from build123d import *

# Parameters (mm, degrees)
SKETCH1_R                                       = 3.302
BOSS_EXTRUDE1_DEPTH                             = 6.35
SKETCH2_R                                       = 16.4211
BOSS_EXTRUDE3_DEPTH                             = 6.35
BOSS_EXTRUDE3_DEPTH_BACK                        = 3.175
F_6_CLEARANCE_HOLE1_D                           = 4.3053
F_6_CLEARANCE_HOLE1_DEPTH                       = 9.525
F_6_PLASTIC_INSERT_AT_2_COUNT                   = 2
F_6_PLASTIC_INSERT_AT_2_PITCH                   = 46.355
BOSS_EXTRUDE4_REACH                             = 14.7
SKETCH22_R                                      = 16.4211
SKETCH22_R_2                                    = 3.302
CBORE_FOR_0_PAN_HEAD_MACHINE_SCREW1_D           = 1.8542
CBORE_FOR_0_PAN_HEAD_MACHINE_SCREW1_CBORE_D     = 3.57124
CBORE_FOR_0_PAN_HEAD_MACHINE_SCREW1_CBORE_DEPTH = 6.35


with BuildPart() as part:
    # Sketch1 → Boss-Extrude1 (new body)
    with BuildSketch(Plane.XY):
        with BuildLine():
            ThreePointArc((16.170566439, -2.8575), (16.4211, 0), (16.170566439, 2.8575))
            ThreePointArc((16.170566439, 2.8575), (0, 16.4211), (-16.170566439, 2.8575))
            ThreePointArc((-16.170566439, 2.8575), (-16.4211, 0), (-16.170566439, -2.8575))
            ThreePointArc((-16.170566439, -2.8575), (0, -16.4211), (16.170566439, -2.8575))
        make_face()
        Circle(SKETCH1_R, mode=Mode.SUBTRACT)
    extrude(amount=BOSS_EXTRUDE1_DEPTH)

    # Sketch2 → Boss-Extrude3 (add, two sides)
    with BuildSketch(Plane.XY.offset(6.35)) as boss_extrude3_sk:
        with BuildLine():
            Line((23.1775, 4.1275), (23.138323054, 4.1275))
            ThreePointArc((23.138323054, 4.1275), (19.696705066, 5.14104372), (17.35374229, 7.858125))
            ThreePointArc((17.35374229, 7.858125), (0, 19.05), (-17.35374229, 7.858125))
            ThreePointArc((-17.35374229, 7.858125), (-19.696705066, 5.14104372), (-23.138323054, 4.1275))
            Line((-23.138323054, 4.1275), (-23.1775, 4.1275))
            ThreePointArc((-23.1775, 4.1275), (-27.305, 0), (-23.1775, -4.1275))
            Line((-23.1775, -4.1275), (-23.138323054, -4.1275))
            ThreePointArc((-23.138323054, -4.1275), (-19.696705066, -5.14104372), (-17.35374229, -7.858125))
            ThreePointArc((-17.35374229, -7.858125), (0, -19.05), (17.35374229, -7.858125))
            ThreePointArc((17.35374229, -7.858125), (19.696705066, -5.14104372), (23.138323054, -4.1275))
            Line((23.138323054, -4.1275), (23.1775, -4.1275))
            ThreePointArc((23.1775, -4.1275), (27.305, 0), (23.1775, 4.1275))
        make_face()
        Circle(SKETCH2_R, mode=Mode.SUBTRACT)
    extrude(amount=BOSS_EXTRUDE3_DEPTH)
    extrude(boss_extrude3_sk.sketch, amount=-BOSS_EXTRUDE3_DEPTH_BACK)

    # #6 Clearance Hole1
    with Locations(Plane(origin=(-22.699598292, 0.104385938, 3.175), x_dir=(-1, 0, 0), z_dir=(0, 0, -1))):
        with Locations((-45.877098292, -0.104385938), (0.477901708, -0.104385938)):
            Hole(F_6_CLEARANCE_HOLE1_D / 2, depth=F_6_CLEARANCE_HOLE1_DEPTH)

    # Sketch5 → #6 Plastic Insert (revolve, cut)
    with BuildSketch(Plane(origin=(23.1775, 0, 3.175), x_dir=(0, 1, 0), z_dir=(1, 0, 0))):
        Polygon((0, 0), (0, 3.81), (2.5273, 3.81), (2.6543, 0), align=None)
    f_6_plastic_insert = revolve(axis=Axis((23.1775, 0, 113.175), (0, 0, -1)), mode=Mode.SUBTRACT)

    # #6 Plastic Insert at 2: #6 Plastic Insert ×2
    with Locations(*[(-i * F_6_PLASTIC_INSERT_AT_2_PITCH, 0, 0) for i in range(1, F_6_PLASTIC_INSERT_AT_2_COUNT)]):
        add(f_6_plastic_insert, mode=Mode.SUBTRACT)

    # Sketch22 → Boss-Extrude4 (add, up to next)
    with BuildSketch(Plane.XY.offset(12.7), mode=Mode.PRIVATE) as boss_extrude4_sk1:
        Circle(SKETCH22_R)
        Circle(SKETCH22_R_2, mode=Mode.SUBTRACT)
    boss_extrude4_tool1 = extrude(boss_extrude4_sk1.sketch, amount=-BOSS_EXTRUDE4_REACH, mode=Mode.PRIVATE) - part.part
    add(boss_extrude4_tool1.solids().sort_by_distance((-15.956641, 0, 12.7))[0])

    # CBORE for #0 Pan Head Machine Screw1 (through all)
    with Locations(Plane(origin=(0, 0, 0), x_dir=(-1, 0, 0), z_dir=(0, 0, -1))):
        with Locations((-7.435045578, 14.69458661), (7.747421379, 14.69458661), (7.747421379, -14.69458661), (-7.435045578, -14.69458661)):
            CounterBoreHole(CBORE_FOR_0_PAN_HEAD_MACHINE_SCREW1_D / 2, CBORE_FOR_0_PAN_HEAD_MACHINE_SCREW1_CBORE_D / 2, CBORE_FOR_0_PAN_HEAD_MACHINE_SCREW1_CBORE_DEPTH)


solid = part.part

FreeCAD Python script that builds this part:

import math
import FreeCAD as App
import Part
import Sketcher

V = App.Vector
Q = App.Units.Quantity

doc = App.newDocument("Part")
body = doc.addObject("PartDesign::Body", "Body")

# Sketch on XY plane
sketch1 = body.newObject("Sketcher::SketchObject", "Sketch")
sketch1.AttachmentSupport = (doc.getObject("XY_Plane"), [""])
sketch1.MapMode = "FlatFace"
sketch1.addGeometry([
    Part.ArcOfCircle(Part.Circle(V(0, 0, 0), V(0, 0, 1), 16.4), math.radians(-10), math.radians(10)),  # 0
    Part.ArcOfCircle(Part.Circle(V(0, 0, 0), V(0, 0, 1), 16.4), math.radians(10), math.radians(170)),  # 1
    Part.ArcOfCircle(Part.Circle(V(0, 0, 0), V(0, 0, 1), 16.4), math.radians(170), math.radians(190)),  # 2
    Part.ArcOfCircle(Part.Circle(V(0, 0, 0), V(0, 0, 1), 16.4), math.radians(-170), math.radians(-10)),  # 3
    Part.Circle(V(0, 0, 0), V(0, 0, 1), 3.3),  # 4
], False)
sketch1.addConstraint([
    Sketcher.Constraint("Tangent", 0, 2, 1, 1),
    Sketcher.Constraint("Tangent", 1, 2, 2, 1),
    Sketcher.Constraint("Tangent", 2, 2, 3, 1),
    Sketcher.Constraint("Tangent", 3, 2, 0, 1),
    Sketcher.Constraint("Coincident", 0, 3, -1, 1),
    Sketcher.Constraint("Coincident", 4, 3, -1, 1),
    Sketcher.Constraint("Equal", 0, 1),
    Sketcher.Constraint("Horizontal", 0, 2, 1, 2),
    Sketcher.Constraint("Horizontal", 2, 2, 3, 2),
    Sketcher.Constraint("Vertical", 1, 2, 2, 2),
    Sketcher.Constraint("Diameter", 4, Q("0.26 in")),
    Sketcher.Constraint("Radius", 0, Q("0.6465 in")),
    Sketcher.Constraint("DistanceY", 2, 2, 1, 2, Q("0.225 in")),
])
pad1 = body.newObject("PartDesign::Pad", "Pad")
pad1.Profile = sketch1
pad1.Length = Q("0.25 in")

# Sketch on XY plane
sketch2 = body.newObject("Sketcher::SketchObject", "Sketch001")
sketch2.AttachmentSupport = (doc.getObject("XY_Plane"), [""])
sketch2.MapMode = "FlatFace"
sketch2.AttachmentOffset = App.Placement(V(0, 0, 0.25 * 25.4), App.Rotation())
sketch2.addGeometry([
    Part.LineSegment(V(23.177, 4.128, 0), V(23.138, 4.128, 0)),  # 0
    Part.ArcOfCircle(Part.Circle(V(23.138, 10.477, 0), V(0, 0, 1), 6.35), math.radians(-156), math.radians(-90)),  # 1
    Part.ArcOfCircle(Part.Circle(V(0, 0, 0), V(0, 0, 1), 19.05), math.radians(24), math.radians(156)),  # 2
    Part.ArcOfCircle(Part.Circle(V(-23.138, 10.477, 0), V(0, 0, 1), 6.35), math.radians(-90), math.radians(-24)),  # 3
    Part.LineSegment(V(-23.138, 4.128, 0), V(-23.177, 4.128, 0)),  # 4
    Part.ArcOfCircle(Part.Circle(V(-23.177, 0, 0), V(0, 0, 1), 4.128), math.radians(90), math.radians(270)),  # 5
    Part.LineSegment(V(-23.177, -4.128, 0), V(-23.138, -4.128, 0)),  # 6
    Part.ArcOfCircle(Part.Circle(V(-23.138, -10.477, 0), V(0, 0, 1), 6.35), math.radians(24), math.radians(90)),  # 7
    Part.ArcOfCircle(Part.Circle(V(0, 0, 0), V(0, 0, 1), 19.05), math.radians(-156), math.radians(-24)),  # 8
    Part.ArcOfCircle(Part.Circle(V(23.138, -10.477, 0), V(0, 0, 1), 6.35), math.radians(90), math.radians(156)),  # 9
    Part.LineSegment(V(23.138, -4.128, 0), V(23.177, -4.128, 0)),  # 10
    Part.ArcOfCircle(Part.Circle(V(23.177, 0, 0), V(0, 0, 1), 4.128), math.radians(-90), math.radians(90)),  # 11
    Part.Circle(V(0, 0, 0), V(0, 0, 1), 16.421),  # 12
], False)
sketch2.addConstraint([
    Sketcher.Constraint("Tangent", 0, 2, 1, 2),
    Sketcher.Constraint("Tangent", 1, 1, 2, 1),
    Sketcher.Constraint("Tangent", 2, 2, 3, 2),
    Sketcher.Constraint("Tangent", 3, 1, 4, 1),
    Sketcher.Constraint("Tangent", 4, 2, 5, 1),
    Sketcher.Constraint("Tangent", 5, 2, 6, 1),
    Sketcher.Constraint("Tangent", 6, 2, 7, 2),
    Sketcher.Constraint("Tangent", 7, 1, 8, 1),
    Sketcher.Constraint("Tangent", 8, 2, 9, 2),
    Sketcher.Constraint("Tangent", 9, 1, 10, 1),
    Sketcher.Constraint("Tangent", 10, 2, 11, 1),
    Sketcher.Constraint("Tangent", 11, 2, 0, 1),
    Sketcher.Constraint("Horizontal", 0),
    Sketcher.Constraint("Horizontal", 4),
    Sketcher.Constraint("Horizontal", 6),
    Sketcher.Constraint("Horizontal", 10),
    Sketcher.Constraint("Coincident", 2, 3, -1, 1),
    Sketcher.Constraint("Coincident", 8, 3, -1, 1),
    Sketcher.Constraint("Coincident", 12, 3, -1, 1),
    Sketcher.Constraint("Equal", 1, 3),
    Sketcher.Constraint("Equal", 3, 7),
    Sketcher.Constraint("Equal", 2, 8),
    Sketcher.Constraint("Equal", 7, 9),
    Sketcher.Constraint("Equal", 5, 11),
    Sketcher.Constraint("Symmetric", 5, 3, 11, 3, -1, 1),
    Sketcher.Constraint("PointOnObject", 5, 3, -1),
    Sketcher.Constraint("Radius", 1, Q("0.25 in")),
    Sketcher.Constraint("Radius", 2, Q("0.75 in")),
    Sketcher.Constraint("Diameter", 12, Q("1.293 in")),
    Sketcher.Constraint("Radius", 5, Q("0.1625 in")),
    Sketcher.Constraint("DistanceX", 5, 3, 11, 3, Q("1.825 in")),
])
pad2 = body.newObject("PartDesign::Pad", "Pad001")
pad2.Profile = sketch2
pad2.Type = "TwoLengths"
pad2.Length = Q("0.25 in")
pad2.Length2 = Q("0.125 in")

# Sketch on XY plane
sketch3 = body.newObject("Sketcher::SketchObject", "Sketch002")
sketch3.AttachmentSupport = (doc.getObject("XY_Plane"), [""])
sketch3.MapMode = "FlatFace"
sketch3.AttachmentOffset = App.Placement(V(0, 0, 0.125 * 25.4), App.Rotation())
sketch3.addGeometry([
    Part.Circle(V(23.2, 0, 0), V(0, 0, 1), 2.2),
    Part.Circle(V(-23.2, 0, 0), V(0, 0, 1), 2.2),
], False)
sketch3.addConstraint([
    Sketcher.Constraint("Equal", 0, 1),
    Sketcher.Constraint("Symmetric", 0, 3, 1, 3, -1, 1),
    Sketcher.Constraint("PointOnObject", 0, 3, -1),
    Sketcher.Constraint("Diameter", 0, Q("0.1695 in")),
    Sketcher.Constraint("DistanceX", 1, 3, 0, 3, Q("1.825 in")),
])
doc.recompute()
hole = body.newObject("PartDesign::Hole", "Hole")
hole.Profile = sketch3
hole.ThreadType = "None"
hole.Diameter = Q("0.1695 in")
hole.DepthType = "Dimension"
hole.Depth = Q("0.375 in")
hole.DrillPoint = "Flat"
hole.Reversed = True

# Sketch on YZ plane
sketch4 = body.newObject("Sketcher::SketchObject", "Sketch003")
sketch4.AttachmentSupport = (doc.getObject("YZ_Plane"), [""])
sketch4.MapMode = "FlatFace"
sketch4.AttachmentOffset = App.Placement(V(0, 0, 0.9125 * 25.4), App.Rotation())
sketch4.addGeometry([
    Part.LineSegment(V(0, 7, 0), V(0, 3.2, 0)),
    Part.LineSegment(V(0, 3.2, 0), V(2.7, 3.2, 0)),
    Part.LineSegment(V(2.7, 3.2, 0), V(2.5, 7, 0)),
    Part.LineSegment(V(2.5, 7, 0), V(0, 7, 0)),
], False)
sketch4.addConstraint([
    Sketcher.Constraint("Coincident", 0, 2, 1, 1),
    Sketcher.Constraint("Coincident", 1, 2, 2, 1),
    Sketcher.Constraint("Coincident", 2, 2, 3, 1),
    Sketcher.Constraint("Coincident", 3, 2, 0, 1),
    Sketcher.Constraint("Vertical", 0),
    Sketcher.Constraint("Horizontal", 1),
    Sketcher.Constraint("Horizontal", 3),
    Sketcher.Constraint("PointOnObject", 0, 2, -2),
    Sketcher.Constraint("DistanceY", 0, 2, 0, 1, Q("0.15 in")),
    Sketcher.Constraint("DistanceX", 1, 1, 1, 2, Q("0.1045 in")),
    Sketcher.Constraint("DistanceX", 3, 2, 3, 1, Q("0.0995 in")),
    Sketcher.Constraint("DistanceY", -1, 1, 0, 2, Q("0.125 in")),
])
groove = body.newObject("PartDesign::Groove", "Groove")
groove.Profile = sketch4
groove.ReferenceAxis = (sketch4, ["V_Axis"])
groove.Angle = 360
doc.recompute()

linearpattern = body.newObject("PartDesign::LinearPattern", "LinearPattern")
linearpattern.Originals = [groove]
linearpattern.Direction = (doc.getObject("X_Axis"), [""])
linearpattern.Mode = "offset"
linearpattern.Offset = Q("1.825 in")
linearpattern.Occurrences = 2
linearpattern.Reversed = True
body.Tip = linearpattern

# Sketch on XY plane
sketch5 = body.newObject("Sketcher::SketchObject", "Sketch004")
sketch5.AttachmentSupport = (doc.getObject("XY_Plane"), [""])
sketch5.MapMode = "FlatFace"
sketch5.AttachmentOffset = App.Placement(V(0, 0, 0.5 * 25.4), App.Rotation())
sketch5.addGeometry([
    Part.Circle(V(0, 0, 0), V(0, 0, 1), 16.4),
    Part.Circle(V(0, 0, 0), V(0, 0, 1), 3.3),
], False)
sketch5.addConstraint([
    Sketcher.Constraint("Coincident", 0, 3, -1, 1),
    Sketcher.Constraint("Coincident", 1, 3, -1, 1),
    Sketcher.Constraint("Diameter", 1, Q("0.26 in")),
    Sketcher.Constraint("Diameter", 0, Q("1.293 in")),
])
pad3 = body.newObject("PartDesign::Pad", "Pad002")
pad3.Profile = sketch5
pad3.Length = Q("0.25 in")
pad3.Reversed = True

# Sketch on XY plane
sketch6 = body.newObject("Sketcher::SketchObject", "Sketch005")
sketch6.AttachmentSupport = (doc.getObject("XY_Plane"), [""])
sketch6.MapMode = "FlatFace"
sketch6.addGeometry([
    Part.Circle(V(7.4, 14.7, 0), V(0, 0, 1), 0.9),
    Part.Circle(V(-7.7, 14.7, 0), V(0, 0, 1), 0.9),
    Part.Circle(V(-7.7, -14.7, 0), V(0, 0, 1), 0.9),
    Part.Circle(V(7.4, -14.7, 0), V(0, 0, 1), 0.9),
], False)
sketch6.addConstraint([
    Sketcher.Constraint("Equal", 0, 1),
    Sketcher.Constraint("Equal", 1, 2),
    Sketcher.Constraint("Equal", 2, 3),
    Sketcher.Constraint("Symmetric", 1, 3, 2, 3, -1),
    Sketcher.Constraint("Symmetric", 0, 3, 3, 3, -1),
    Sketcher.Constraint("Horizontal", 0, 3, 1, 3),
    Sketcher.Constraint("Diameter", 0, Q("0.073 in")),
    Sketcher.Constraint("DistanceX", 1, 3, -1, 1, 7.747421),
    Sketcher.Constraint("DistanceX", -1, 1, 0, 3, 7.435046),
    Sketcher.Constraint("DistanceY", -1, 1, 0, 3, 14.694587),
])
doc.recompute()
hole2 = body.newObject("PartDesign::Hole", "Hole001")
hole2.Profile = sketch6
hole2.ThreadType = "None"
hole2.Diameter = Q("0.073 in")
hole2.DepthType = "ThroughAll"
hole2.HoleCutType = "Counterbore"
hole2.HoleCutDiameter = Q("0.1406 in")
hole2.HoleCutDepth = Q("0.25 in")
hole2.Reversed = True

doc.recompute()
